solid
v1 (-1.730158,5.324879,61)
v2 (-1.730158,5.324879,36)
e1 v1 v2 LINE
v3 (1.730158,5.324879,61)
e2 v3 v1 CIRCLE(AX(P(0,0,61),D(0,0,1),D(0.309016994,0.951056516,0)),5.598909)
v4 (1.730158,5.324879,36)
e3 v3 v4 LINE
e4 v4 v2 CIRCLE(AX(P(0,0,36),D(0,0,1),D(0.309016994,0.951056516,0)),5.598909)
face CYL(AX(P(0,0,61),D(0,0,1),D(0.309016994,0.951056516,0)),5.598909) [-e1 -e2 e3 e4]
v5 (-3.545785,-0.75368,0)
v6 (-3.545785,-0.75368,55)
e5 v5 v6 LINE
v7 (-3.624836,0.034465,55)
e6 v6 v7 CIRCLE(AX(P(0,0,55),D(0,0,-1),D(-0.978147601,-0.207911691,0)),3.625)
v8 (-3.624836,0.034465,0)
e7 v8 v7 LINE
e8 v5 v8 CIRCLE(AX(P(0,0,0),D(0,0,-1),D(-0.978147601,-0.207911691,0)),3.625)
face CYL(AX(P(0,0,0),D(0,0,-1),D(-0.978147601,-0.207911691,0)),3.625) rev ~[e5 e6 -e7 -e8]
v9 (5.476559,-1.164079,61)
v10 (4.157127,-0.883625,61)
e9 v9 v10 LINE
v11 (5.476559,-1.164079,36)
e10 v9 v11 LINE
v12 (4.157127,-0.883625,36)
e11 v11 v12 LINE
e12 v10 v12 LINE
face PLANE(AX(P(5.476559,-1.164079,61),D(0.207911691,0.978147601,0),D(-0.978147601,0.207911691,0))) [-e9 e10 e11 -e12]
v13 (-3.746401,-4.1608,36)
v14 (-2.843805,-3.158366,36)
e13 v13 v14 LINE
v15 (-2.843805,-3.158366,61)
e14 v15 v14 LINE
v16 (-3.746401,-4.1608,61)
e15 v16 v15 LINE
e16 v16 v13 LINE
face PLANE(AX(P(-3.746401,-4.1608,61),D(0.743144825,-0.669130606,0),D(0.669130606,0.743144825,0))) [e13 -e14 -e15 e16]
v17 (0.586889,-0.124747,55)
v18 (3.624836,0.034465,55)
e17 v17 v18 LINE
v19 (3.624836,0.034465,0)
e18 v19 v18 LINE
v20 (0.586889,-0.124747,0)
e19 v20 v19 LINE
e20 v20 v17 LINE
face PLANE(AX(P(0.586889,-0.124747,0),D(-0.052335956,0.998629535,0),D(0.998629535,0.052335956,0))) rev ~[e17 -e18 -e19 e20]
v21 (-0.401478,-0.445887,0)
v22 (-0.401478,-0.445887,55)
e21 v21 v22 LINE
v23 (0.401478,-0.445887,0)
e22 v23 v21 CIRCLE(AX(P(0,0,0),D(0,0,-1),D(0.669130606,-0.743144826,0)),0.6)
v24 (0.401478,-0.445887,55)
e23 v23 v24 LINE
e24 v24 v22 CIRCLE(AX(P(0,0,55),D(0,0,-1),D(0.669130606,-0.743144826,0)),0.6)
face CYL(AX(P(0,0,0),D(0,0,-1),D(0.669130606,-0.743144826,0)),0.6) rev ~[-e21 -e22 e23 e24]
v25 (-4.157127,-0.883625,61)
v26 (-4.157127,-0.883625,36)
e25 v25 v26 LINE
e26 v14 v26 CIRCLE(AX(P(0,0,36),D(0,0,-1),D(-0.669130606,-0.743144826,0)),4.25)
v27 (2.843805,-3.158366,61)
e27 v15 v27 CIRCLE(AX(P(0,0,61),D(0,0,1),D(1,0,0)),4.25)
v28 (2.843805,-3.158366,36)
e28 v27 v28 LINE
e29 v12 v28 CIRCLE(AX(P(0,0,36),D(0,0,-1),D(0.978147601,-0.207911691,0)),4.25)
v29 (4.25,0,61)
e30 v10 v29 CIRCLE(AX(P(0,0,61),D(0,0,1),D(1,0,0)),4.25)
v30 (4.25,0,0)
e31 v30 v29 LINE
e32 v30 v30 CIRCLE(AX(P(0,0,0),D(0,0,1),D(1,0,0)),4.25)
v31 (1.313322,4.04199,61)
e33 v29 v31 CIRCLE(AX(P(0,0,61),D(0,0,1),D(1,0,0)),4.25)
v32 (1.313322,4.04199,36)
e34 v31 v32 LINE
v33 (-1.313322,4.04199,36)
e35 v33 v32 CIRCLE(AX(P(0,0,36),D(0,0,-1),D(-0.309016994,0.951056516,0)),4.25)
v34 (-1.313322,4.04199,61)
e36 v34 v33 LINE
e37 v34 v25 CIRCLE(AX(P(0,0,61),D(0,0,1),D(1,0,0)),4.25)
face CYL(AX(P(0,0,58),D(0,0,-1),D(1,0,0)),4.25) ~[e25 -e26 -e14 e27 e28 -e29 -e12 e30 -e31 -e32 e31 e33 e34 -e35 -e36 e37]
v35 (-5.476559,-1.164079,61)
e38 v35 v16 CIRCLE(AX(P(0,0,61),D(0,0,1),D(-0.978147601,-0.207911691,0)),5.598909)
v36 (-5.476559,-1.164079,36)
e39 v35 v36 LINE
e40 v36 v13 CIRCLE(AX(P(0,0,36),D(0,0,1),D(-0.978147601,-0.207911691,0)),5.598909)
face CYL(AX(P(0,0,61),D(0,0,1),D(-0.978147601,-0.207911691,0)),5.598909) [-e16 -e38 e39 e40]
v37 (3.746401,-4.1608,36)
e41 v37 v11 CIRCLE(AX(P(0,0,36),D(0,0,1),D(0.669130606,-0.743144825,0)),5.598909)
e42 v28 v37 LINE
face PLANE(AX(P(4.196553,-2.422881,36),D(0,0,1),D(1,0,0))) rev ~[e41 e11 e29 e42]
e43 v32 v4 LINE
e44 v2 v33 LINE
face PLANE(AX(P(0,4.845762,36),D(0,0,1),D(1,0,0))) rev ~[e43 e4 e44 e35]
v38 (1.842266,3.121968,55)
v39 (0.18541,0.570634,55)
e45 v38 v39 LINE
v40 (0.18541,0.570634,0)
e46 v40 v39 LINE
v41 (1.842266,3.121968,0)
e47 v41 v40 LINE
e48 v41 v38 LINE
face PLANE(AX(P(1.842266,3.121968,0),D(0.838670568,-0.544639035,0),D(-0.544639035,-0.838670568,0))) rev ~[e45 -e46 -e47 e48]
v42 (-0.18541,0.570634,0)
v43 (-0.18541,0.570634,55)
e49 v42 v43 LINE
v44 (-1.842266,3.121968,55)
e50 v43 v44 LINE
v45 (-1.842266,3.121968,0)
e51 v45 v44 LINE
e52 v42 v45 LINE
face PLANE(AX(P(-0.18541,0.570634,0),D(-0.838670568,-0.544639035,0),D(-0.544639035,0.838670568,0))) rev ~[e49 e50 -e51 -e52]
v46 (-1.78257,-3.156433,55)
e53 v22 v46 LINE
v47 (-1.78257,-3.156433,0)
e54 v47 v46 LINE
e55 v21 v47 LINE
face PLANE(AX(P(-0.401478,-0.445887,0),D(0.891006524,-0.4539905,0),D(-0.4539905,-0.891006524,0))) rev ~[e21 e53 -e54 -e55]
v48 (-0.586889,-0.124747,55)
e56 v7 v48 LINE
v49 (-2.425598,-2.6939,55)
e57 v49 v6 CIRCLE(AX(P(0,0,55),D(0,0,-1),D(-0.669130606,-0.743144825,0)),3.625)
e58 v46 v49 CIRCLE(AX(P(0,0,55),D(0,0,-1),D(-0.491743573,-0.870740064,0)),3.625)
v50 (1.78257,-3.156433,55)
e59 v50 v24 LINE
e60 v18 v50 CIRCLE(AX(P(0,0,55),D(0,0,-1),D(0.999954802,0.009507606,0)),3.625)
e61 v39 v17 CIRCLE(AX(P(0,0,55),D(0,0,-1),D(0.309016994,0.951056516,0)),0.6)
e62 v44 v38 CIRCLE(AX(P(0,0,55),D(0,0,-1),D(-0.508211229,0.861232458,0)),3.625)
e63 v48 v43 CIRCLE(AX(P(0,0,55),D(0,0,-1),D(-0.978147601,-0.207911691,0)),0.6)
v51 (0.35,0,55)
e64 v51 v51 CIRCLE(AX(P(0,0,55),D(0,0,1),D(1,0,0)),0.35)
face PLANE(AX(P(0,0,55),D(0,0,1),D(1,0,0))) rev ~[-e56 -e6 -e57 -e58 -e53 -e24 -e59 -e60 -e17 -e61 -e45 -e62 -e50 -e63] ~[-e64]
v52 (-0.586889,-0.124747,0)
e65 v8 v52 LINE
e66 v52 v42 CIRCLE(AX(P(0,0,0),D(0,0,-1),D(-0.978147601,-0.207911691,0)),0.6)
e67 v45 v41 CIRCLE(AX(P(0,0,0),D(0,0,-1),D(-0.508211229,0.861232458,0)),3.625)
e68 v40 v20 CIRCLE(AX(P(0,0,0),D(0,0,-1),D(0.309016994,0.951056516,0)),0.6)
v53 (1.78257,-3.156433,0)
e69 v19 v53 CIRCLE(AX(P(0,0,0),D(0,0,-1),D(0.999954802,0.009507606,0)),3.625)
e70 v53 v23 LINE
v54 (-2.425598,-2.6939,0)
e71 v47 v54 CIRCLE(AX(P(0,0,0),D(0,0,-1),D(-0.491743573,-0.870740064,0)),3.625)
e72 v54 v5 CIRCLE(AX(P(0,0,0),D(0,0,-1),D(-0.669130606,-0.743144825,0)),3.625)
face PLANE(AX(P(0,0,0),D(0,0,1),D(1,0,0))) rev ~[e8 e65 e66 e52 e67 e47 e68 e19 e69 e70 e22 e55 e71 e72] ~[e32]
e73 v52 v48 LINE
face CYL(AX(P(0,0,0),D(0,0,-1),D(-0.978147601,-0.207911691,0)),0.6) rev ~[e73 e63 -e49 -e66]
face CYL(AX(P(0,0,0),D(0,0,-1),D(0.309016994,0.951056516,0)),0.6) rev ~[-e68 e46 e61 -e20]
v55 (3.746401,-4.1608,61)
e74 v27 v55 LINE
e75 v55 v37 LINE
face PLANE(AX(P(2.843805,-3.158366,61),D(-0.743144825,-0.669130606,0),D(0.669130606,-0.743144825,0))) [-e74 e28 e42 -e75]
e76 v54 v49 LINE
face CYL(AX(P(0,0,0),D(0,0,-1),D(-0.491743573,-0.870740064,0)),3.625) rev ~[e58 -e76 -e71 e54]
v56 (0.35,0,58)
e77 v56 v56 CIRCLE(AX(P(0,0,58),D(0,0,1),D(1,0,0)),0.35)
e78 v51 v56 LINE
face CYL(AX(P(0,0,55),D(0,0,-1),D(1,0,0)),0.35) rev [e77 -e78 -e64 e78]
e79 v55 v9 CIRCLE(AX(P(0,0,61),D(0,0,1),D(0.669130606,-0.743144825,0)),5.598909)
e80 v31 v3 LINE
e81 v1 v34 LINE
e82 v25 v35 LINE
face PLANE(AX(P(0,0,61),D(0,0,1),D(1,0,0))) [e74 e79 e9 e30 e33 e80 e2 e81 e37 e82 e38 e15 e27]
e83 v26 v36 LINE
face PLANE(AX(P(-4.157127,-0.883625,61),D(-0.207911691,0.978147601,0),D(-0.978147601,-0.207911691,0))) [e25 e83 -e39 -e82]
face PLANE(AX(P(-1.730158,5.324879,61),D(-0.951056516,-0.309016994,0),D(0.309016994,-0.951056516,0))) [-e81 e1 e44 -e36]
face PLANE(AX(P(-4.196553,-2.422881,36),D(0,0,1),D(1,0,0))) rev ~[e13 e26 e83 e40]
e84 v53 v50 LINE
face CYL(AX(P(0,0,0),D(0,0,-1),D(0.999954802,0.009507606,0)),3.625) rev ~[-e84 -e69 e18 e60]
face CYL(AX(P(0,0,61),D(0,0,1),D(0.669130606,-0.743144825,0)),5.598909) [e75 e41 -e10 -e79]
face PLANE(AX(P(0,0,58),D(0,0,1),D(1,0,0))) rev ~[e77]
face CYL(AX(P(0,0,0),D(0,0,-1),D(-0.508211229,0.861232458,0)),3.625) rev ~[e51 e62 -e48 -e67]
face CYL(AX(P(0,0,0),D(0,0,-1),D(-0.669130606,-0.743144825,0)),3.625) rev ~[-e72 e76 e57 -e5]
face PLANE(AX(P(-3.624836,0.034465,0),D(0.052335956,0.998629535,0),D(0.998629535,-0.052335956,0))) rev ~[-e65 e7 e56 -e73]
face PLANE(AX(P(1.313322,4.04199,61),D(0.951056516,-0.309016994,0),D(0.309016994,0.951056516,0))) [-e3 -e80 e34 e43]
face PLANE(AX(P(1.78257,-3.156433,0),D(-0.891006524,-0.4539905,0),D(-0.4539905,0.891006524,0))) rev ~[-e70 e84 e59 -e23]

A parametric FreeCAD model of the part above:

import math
import FreeCAD as App
import Part
import Sketcher

V = App.Vector
Q = App.Units.Quantity

doc = App.newDocument("Part")
body = doc.addObject("PartDesign::Body", "Body")

# Sketch on XY plane
sketch1 = body.newObject("Sketcher::SketchObject", "Sketch")
sketch1.AttachmentSupport = (doc.getObject("XY_Plane"), [""])
sketch1.MapMode = "FlatFace"
sketch1.addGeometry([
    Part.Circle(V(0, 0, 0), V(0, 0, 1), 4.2),  # 0
    Part.LineSegment(V(1.8, -3.2, 0), V(0.4, -0.4, 0)),  # 1
    Part.ArcOfCircle(Part.Circle(V(0, 0, 0), V(0, 0, 1), 0.6), math.radians(-132), math.radians(-48)),  # 2
    Part.LineSegment(V(-0.4, -0.4, 0), V(-1.8, -3.2, 0)),  # 3
    Part.ArcOfCircle(Part.Circle(V(0, 0, 0), V(0, 0, 1), 3.6), math.radians(-132), math.radians(-119.46)),  # 4
    Part.ArcOfCircle(Part.Circle(V(0, 0, 0), V(0, 0, 1), 3.6), math.radians(-168), math.radians(-132)),  # 5
    Part.ArcOfCircle(Part.Circle(V(0, 0, 0), V(0, 0, 1), 3.6), math.radians(179.46), math.radians(192)),  # 6
    Part.LineSegment(V(-3.6, 0, 0), V(-0.6, -0.1, 0)),  # 7
    Part.ArcOfCircle(Part.Circle(V(0, 0, 0), V(0, 0, 1), 0.6), math.radians(108), math.radians(192)),  # 8
    Part.LineSegment(V(-0.2, 0.6, 0), V(-1.8, 3.1, 0)),  # 9
    Part.ArcOfCircle(Part.Circle(V(0, 0, 0), V(0, 0, 1), 3.6), math.radians(59), math.radians(121)),  # 10
    Part.LineSegment(V(1.8, 3.1, 0), V(0.2, 0.6, 0)),  # 11
    Part.ArcOfCircle(Part.Circle(V(0, 0, 0), V(0, 0, 1), 0.6), math.radians(-12), math.radians(72)),  # 12
    Part.LineSegment(V(0.6, -0.1, 0), V(3.6, 0, 0)),  # 13
    Part.ArcOfCircle(Part.Circle(V(0, 0, 0), V(0, 0, 1), 3.6), math.radians(-61), math.radians(1)),  # 14
], False)
sketch1.addConstraint([
    Sketcher.Constraint("Coincident", 1, 2, 2, 2),
    Sketcher.Constraint("Coincident", 2, 1, 3, 1),
    Sketcher.Constraint("Coincident", 3, 2, 4, 2),
    Sketcher.Constraint("Tangent", 4, 1, 5, 2),
    Sketcher.Constraint("Tangent", 5, 1, 6, 2),
    Sketcher.Constraint("Coincident", 6, 1, 7, 1),
    Sketcher.Constraint("Coincident", 7, 2, 8, 2),
    Sketcher.Constraint("Coincident", 8, 1, 9, 1),
    Sketcher.Constraint("Coincident", 9, 2, 10, 2),
    Sketcher.Constraint("Coincident", 10, 1, 11, 1),
    Sketcher.Constraint("Coincident", 11, 2, 12, 2),
    Sketcher.Constraint("Coincident", 12, 1, 13, 1),
    Sketcher.Constraint("Coincident", 13, 2, 14, 2),
    Sketcher.Constraint("Coincident", 14, 1, 1, 1),
    Sketcher.Constraint("Coincident", 0, 3, -1, 1),
    Sketcher.Constraint("Coincident", 2, 3, -1, 1),
    Sketcher.Constraint("Coincident", 4, 3, -1, 1),
    Sketcher.Constraint("Coincident", 6, 3, -1, 1),
    Sketcher.Constraint("Coincident", 8, 3, -1, 1),
    Sketcher.Constraint("Coincident", 10, 3, -1, 1),
    Sketcher.Constraint("Coincident", 12, 3, -1, 1),
    Sketcher.Constraint("Coincident", 14, 3, -1, 1),
    Sketcher.Constraint("Equal", 2, 8),
    Sketcher.Constraint("Equal", 6, 10),
    Sketcher.Constraint("Equal", 8, 12),
    Sketcher.Constraint("Equal", 10, 14),
    Sketcher.Constraint("Horizontal", 1, 2, 2, 1),
    Sketcher.Constraint("Horizontal", 9, 2, 10, 1),
    Sketcher.Constraint("Horizontal", 8, 1, 11, 2),
    Sketcher.Constraint("Horizontal", 7, 2, 12, 1),
    Sketcher.Constraint("Horizontal", 6, 1, 13, 2),
    Sketcher.Constraint("Horizontal", 3, 2, 14, 1),
    Sketcher.Constraint("Equal", 3, 7),
    Sketcher.Constraint("Equal", 7, 9),
    Sketcher.Constraint("Diameter", 0, 8.5),
    Sketcher.Constraint("Radius", 2, 0.6),
    Sketcher.Constraint("Angle", 1, Q("117 deg")),
    Sketcher.Constraint("Angle", 7, Q("-3 deg")),
    Sketcher.Constraint("Angle", 9, Q("123 deg")),
    Sketcher.Constraint("Radius", 4, 3.625),
    Sketcher.Constraint("DistanceX", 4, 1, -1, 1, 2.425598),
    Sketcher.Constraint("DistanceX", -1, 1, 1, 2, 0.401478),
    Sketcher.Constraint("DistanceY", 5, 1, -1, 1, 0.75368),
])
pad1 = body.newObject("PartDesign::Pad", "Pad")
pad1.Profile = sketch1
pad1.Length = 55

# Sketch on XY plane
sketch2 = body.newObject("Sketcher::SketchObject", "Sketch001")
sketch2.AttachmentSupport = (doc.getObject("XY_Plane"), [""])
sketch2.MapMode = "FlatFace"
sketch2.AttachmentOffset = App.Placement(V(0, 0, 55), App.Rotation())
sketch2.addGeometry([
    Part.Circle(V(0, 0, 0), V(0, 0, 1), 4.25),
    Part.Circle(V(0, 0, 0), V(0, 0, 1), 0.35),
], False)
sketch2.addConstraint([
    Sketcher.Constraint("Coincident", 0, 3, -1, 1),
    Sketcher.Constraint("Coincident", 1, 3, -1, 1),
    Sketcher.Constraint("Diameter", 0, 8.5),
    Sketcher.Constraint("Diameter", 1, 0.7),
])
pad2 = body.newObject("PartDesign::Pad", "Pad001")
pad2.Profile = sketch2
pad2.Length = 3

# Sketch on XY plane
sketch3 = body.newObject("Sketcher::SketchObject", "Sketch002")
sketch3.AttachmentSupport = (doc.getObject("XY_Plane"), [""])
sketch3.MapMode = "FlatFace"
sketch3.AttachmentOffset = App.Placement(V(0, 0, 58), App.Rotation())
sketch3.addGeometry(Part.Circle(V(0, 0, 0), V(0, 0, 1), 4.2), False)
sketch3.addConstraint([
    Sketcher.Constraint("Coincident", 0, 3, -1, 1),
    Sketcher.Constraint("Diameter", 0, 8.5),
])
pad3 = body.newObject("PartDesign::Pad", "Pad002")
pad3.Profile = sketch3
pad3.Length = 3

# Sketch on XY plane
sketch4 = body.newObject("Sketcher::SketchObject", "Sketch003")
sketch4.AttachmentSupport = (doc.getObject("XY_Plane"), [""])
sketch4.MapMode = "FlatFace"
sketch4.AttachmentOffset = App.Placement(V(0, 0, 61), App.Rotation())
sketch4.addGeometry([
    Part.ArcOfCircle(Part.Circle(V(0, 0, 0), V(0, 0, 1), 4.2), math.radians(-168), math.radians(-132)),  # 0
    Part.LineSegment(V(-4.2, -0.9, 0), V(-5.5, -1.2, 0)),  # 1
    Part.ArcOfCircle(Part.Circle(V(0, 0, 0), V(0, 0, 1), 5.6), math.radians(-168), math.radians(-132)),  # 2
    Part.LineSegment(V(-3.7, -4.2, 0), V(-2.8, -3.2, 0)),  # 3
    Part.ArcOfCircle(Part.Circle(V(0, 0, 0), V(0, 0, 1), 4.3), math.radians(72), math.radians(108)),  # 4
    Part.LineSegment(V(1.3, 4, 0), V(1.7, 5.3, 0)),  # 5
    Part.ArcOfCircle(Part.Circle(V(0, 0, 0), V(0, 0, 1), 5.6), math.radians(72), math.radians(108)),  # 6
    Part.LineSegment(V(-1.7, 5.3, 0), V(-1.3, 4, 0)),  # 7
    Part.ArcOfCircle(Part.Circle(V(0, 0, 0), V(0, 0, 1), 4.2), math.radians(-48), math.radians(-12)),  # 8
    Part.LineSegment(V(2.8, -3.2, 0), V(3.7, -4.2, 0)),  # 9
    Part.ArcOfCircle(Part.Circle(V(0, 0, 0), V(0, 0, 1), 5.6), math.radians(-48), math.radians(-12)),  # 10
    Part.LineSegment(V(5.5, -1.2, 0), V(4.2, -0.9, 0)),  # 11
], False)
sketch4.addConstraint([
    Sketcher.Constraint("Coincident", 0, 1, 1, 1),
    Sketcher.Constraint("Coincident", 1, 2, 2, 1),
    Sketcher.Constraint("Coincident", 2, 2, 3, 1),
    Sketcher.Constraint("Coincident", 3, 2, 0, 2),
    Sketcher.Constraint("Coincident", 4, 1, 5, 1),
    Sketcher.Constraint("Coincident", 5, 2, 6, 1),
    Sketcher.Constraint("Coincident", 6, 2, 7, 1),
    Sketcher.Constraint("Coincident", 7, 2, 4, 2),
    Sketcher.Constraint("Coincident", 8, 1, 9, 1),
    Sketcher.Constraint("Coincident", 9, 2, 10, 1),
    Sketcher.Constraint("Coincident", 10, 2, 11, 1),
    Sketcher.Constraint("Coincident", 11, 2, 8, 2),
    Sketcher.Constraint("Coincident", 0, 3, -1, 1),
    Sketcher.Constraint("Coincident", 2, 3, -1, 1),
    Sketcher.Constraint("Coincident", 4, 3, -1, 1),
    Sketcher.Constraint("Coincident", 6, 3, -1, 1),
    Sketcher.Constraint("Coincident", 8, 3, -1, 1),
    Sketcher.Constraint("Coincident", 10, 3, -1, 1),
    Sketcher.Constraint("Equal", 0, 4),
    Sketcher.Constraint("Equal", 2, 6),
    Sketcher.Constraint("Equal", 4, 8),
    Sketcher.Constraint("Equal", 6, 10),
    Sketcher.Constraint("Horizontal", 5, 2, 6, 2),
    Sketcher.Constraint("Horizontal", 4, 1, 7, 2),
    Sketcher.Constraint("Horizontal", 3, 2, 8, 1),
    Sketcher.Constraint("Horizontal", 2, 2, 9, 2),
    Sketcher.Constraint("Horizontal", 1, 2, 10, 2),
    Sketcher.Constraint("Horizontal", 0, 1, 11, 2),
    Sketcher.Constraint("Angle", 1, Q("-168 deg")),
    Sketcher.Constraint("Angle", 3, Q("48 deg")),
    Sketcher.Constraint("Angle", 5, Q("72 deg")),
    Sketcher.Constraint("Radius", 0, 4.25),
    Sketcher.Constraint("Radius", 2, 5.598909),
    Sketcher.Constraint("DistanceX", 2, 2, -1, 1, 3.746401),
    Sketcher.Constraint("DistanceX", 1, 2, -1, 1, 5.476559),
    Sketcher.Constraint("DistanceY", -1, 1, 4, 1, 4.04199),
])
pad4 = body.newObject("PartDesign::Pad", "Pad003")
pad4.Profile = sketch4
pad4.Length = 25
pad4.Reversed = True

doc.recompute()
